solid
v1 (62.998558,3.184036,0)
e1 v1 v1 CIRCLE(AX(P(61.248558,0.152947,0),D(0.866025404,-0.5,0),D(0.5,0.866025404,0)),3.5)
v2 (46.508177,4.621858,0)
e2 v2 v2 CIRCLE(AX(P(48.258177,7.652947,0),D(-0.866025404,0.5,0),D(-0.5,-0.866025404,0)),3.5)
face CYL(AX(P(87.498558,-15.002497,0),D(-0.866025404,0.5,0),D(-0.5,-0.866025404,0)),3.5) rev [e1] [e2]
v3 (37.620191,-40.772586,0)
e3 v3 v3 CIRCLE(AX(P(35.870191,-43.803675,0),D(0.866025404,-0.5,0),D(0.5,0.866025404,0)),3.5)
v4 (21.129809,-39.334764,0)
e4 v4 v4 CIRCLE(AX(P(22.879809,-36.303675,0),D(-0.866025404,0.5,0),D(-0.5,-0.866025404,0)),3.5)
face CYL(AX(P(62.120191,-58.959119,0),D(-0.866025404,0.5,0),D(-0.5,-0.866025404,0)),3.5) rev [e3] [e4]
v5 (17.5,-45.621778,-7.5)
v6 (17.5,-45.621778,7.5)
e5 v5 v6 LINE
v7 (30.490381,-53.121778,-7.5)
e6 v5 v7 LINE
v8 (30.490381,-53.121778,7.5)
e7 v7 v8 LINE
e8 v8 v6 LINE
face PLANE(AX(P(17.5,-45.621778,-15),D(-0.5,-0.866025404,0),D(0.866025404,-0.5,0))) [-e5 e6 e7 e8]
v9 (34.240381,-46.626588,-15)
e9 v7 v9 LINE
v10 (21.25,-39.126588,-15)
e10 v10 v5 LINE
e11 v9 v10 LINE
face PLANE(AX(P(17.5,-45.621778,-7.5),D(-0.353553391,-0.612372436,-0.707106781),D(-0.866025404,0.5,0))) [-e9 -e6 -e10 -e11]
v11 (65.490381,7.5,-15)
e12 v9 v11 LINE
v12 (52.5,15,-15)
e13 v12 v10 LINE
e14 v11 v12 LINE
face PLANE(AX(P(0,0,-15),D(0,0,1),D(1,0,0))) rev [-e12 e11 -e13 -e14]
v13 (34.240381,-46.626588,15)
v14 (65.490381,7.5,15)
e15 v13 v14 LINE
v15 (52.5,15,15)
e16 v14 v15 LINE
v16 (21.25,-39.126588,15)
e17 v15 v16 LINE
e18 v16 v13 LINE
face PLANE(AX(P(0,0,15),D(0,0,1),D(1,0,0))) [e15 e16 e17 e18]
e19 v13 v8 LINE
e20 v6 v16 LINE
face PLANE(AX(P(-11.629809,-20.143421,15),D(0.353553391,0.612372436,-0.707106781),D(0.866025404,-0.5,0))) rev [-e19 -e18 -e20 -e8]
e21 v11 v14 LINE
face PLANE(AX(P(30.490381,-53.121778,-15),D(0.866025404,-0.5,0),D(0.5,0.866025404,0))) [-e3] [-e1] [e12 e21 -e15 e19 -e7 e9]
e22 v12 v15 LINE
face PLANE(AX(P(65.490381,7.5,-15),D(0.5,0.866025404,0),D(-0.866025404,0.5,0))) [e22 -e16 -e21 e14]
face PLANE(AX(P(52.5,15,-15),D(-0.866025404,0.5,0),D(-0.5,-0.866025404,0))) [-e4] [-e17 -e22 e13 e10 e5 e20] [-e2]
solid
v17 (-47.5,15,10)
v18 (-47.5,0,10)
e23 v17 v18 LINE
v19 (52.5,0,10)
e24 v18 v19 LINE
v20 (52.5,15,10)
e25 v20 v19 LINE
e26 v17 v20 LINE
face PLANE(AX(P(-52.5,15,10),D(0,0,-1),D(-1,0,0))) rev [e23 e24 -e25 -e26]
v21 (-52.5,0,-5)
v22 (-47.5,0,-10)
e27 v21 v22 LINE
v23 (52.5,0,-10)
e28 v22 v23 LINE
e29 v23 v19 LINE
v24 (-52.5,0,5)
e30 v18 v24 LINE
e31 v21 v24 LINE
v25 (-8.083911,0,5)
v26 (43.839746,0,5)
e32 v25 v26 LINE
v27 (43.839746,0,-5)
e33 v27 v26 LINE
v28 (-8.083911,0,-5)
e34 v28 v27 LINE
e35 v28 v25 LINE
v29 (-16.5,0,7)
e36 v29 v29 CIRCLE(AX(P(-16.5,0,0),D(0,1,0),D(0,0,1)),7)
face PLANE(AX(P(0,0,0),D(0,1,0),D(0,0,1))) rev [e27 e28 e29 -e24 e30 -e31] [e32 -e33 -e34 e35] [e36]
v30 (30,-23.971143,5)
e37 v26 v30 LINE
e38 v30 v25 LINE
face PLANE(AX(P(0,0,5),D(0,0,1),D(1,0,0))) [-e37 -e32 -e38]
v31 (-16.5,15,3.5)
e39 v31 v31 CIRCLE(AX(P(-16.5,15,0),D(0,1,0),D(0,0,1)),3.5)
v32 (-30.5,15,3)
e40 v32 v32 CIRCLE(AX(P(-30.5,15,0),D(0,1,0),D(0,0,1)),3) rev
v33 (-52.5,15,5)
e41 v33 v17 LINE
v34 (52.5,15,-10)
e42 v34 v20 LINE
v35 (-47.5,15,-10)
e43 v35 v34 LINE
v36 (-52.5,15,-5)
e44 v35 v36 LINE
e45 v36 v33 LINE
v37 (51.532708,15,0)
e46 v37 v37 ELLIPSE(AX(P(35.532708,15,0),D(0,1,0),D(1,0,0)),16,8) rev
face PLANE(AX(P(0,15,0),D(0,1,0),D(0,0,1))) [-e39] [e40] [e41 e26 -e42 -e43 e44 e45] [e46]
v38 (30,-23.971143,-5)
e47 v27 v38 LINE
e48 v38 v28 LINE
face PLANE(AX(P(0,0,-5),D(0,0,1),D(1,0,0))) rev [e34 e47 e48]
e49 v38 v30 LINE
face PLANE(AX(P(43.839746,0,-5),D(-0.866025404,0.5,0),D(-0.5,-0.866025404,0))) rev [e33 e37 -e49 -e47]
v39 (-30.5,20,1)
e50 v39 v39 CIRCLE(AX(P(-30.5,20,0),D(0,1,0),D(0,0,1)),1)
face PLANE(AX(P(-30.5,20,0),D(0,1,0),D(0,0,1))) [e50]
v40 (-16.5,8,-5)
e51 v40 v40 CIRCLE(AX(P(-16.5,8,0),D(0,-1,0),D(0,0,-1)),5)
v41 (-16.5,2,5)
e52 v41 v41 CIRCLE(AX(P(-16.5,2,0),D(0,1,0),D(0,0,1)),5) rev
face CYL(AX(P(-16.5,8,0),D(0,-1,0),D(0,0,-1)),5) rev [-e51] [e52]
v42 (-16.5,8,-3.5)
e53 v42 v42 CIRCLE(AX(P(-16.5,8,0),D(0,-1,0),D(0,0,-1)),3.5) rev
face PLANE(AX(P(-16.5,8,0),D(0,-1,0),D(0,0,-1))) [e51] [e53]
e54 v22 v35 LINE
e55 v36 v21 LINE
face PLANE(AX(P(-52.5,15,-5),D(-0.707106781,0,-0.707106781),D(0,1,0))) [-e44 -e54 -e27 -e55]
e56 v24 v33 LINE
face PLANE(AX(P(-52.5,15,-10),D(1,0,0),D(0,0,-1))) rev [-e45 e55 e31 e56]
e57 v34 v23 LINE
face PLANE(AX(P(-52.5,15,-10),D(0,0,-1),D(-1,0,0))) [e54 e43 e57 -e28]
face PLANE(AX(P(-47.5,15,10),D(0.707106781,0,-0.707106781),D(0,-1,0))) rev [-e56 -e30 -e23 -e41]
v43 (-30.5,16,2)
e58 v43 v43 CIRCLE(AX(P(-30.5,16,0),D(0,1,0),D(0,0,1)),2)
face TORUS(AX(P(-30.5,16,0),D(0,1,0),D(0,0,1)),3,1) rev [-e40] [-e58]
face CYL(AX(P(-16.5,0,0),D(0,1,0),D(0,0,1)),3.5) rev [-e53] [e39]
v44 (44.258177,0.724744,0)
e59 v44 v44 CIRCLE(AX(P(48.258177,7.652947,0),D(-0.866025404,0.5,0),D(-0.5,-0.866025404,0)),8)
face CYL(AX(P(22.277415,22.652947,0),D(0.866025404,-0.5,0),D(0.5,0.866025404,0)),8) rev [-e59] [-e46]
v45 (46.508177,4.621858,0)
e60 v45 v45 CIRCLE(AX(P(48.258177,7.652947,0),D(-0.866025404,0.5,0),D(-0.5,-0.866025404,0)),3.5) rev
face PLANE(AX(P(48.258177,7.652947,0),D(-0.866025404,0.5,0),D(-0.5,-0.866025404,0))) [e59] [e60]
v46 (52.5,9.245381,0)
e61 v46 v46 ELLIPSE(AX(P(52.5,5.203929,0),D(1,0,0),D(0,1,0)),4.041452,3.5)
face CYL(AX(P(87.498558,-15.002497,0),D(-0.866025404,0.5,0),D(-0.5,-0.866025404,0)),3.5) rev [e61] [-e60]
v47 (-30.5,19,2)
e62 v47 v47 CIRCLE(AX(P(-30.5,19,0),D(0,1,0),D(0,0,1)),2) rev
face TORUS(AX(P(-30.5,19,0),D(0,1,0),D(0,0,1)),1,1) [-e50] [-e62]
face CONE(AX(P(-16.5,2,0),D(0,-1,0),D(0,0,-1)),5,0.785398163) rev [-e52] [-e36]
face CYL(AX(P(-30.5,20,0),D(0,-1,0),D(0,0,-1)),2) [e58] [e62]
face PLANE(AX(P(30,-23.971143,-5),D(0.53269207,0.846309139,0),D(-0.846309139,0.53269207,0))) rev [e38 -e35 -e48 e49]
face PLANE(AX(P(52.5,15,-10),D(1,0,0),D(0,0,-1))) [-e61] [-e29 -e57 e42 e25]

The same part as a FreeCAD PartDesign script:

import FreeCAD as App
import Part
import Sketcher

V = App.Vector
Q = App.Units.Quantity


def edges_at(feature, points):
    """Names of the edges that pass closest to the given points."""
    edges = feature.Shape.Edges
    near = lambda p: min(range(len(edges)), key=lambda i: edges[i].distToShape(Part.Vertex(*p))[0])
    return sorted({f"Edge{near(p) + 1}" for p in points})


def add_polygon(sketch, points):
    """Adds a closed chain of lines whose ends are joined by coincident constraints."""
    first, n = sketch.GeometryCount, len(points)
    for a, b in zip(points, points[1:] + points[:1]):
        sketch.addGeometry(Part.LineSegment(App.Vector(*a, 0), App.Vector(*b, 0)), False)
    for i in range(n):
        sketch.addConstraint(Sketcher.Constraint("Coincident", first + i, 2, first + (i + 1) % n, 1))

doc = App.newDocument("Part")
body = doc.addObject("PartDesign::Body", "Body")

sketch1 = body.newObject("Sketcher::SketchObject", "Sketch")
sketch1.AttachmentSupport = (doc.getObject("XZ_Plane"), [""])
sketch1.MapMode = "FlatFace"
add_polygon(sketch1, [(-52.5, -10), (-52.5, 10), (52.5, 10), (52.5, -10)])
sketch1.addConstraint([
    Sketcher.Constraint("Vertical", 0),
    Sketcher.Constraint("Horizontal", 1),
    Sketcher.Constraint("Vertical", 2),
    Sketcher.Constraint("Horizontal", 3),
    Sketcher.Constraint("Symmetric", 0, 2, 2, 2, -1, 1),
    Sketcher.Constraint("DistanceX", 1, 1, 1, 2, Q("105 mm")),
    Sketcher.Constraint("DistanceY", 0, 1, 0, 2, Q("20 mm")),
])
pad1 = body.newObject("PartDesign::Pad", "Pad")
pad1.Profile = sketch1
pad1.Length = 15
pad1.Reversed = True

sketch2 = body.newObject("Sketcher::SketchObject", "Sketch001")
sketch2.AttachmentSupport = (doc.getObject("XZ_Plane"), [""])
sketch2.MapMode = "FlatFace"
sketch2.AttachmentOffset = App.Placement(V(0, 0, -15), App.Rotation())
sketch2.addGeometry(Part.Circle(V(-16.5, 0, 0), V(0, 0, 1), 3.5), False)
sketch2.addConstraint([
    Sketcher.Constraint("PointOnObject", 0, 3, -1),
    Sketcher.Constraint("Diameter", 0, Q("7 mm")),
    Sketcher.Constraint("DistanceX", 0, 3, -1, 1, Q("16.5 mm")),
])
pocket1 = body.newObject("PartDesign::Pocket", "Pocket")
pocket1.Profile = sketch2
pocket1.Length = 15
pocket1.Reversed = True

sketch3 = body.newObject("Sketcher::SketchObject", "Sketch002")
sketch3.AttachmentSupport = (doc.getObject("XZ_Plane"), [""])
sketch3.MapMode = "FlatFace"
sketch3.AttachmentOffset = App.Placement(V(0, 0, -15), App.Rotation())
sketch3.addGeometry(Part.Circle(V(-30.5, 0, 0), V(0, 0, 1), 2), False)
sketch3.addConstraint([
    Sketcher.Constraint("PointOnObject", 0, 3, -1),
    Sketcher.Constraint("Diameter", 0, Q("4 mm")),
    Sketcher.Constraint("DistanceX", 0, 3, -1, 1, Q("30.5 mm")),
])
pad2 = body.newObject("PartDesign::Pad", "Pad001")
pad2.Profile = sketch3
pad2.Length = 5
pad2.Reversed = True

sketch4 = body.newObject("Sketcher::SketchObject", "Sketch003")
sketch4.AttachmentSupport = (doc.getObject("XZ_Plane"), [""])
sketch4.MapMode = "FlatFace"
sketch4.addGeometry(Part.Circle(V(-16.5, 0, 0), V(0, 0, 1), 5), False)
sketch4.addConstraint([
    Sketcher.Constraint("PointOnObject", 0, 3, -1),
    Sketcher.Constraint("Diameter", 0, Q("10 mm")),
    Sketcher.Constraint("DistanceX", 0, 3, -1, 1, Q("16.5 mm")),
])
pocket2 = body.newObject("PartDesign::Pocket", "Pocket001")
pocket2.Profile = sketch4
pocket2.Length = 8

sketch5 = body.newObject("Sketcher::SketchObject", "Sketch004")
sketch5.AttachmentSupport = (doc.getObject("XY_Plane"), [""])
sketch5.MapMode = "FlatFace"
add_polygon(sketch5, [(43.839746, 0), (-8.083911, 0), (30, -23.971143)])
sketch5.addConstraint([
    Sketcher.Constraint("Horizontal", 0),
    Sketcher.Constraint("PointOnObject", 0, 2, -1),
    Sketcher.Constraint("Angle", 2, Q("60 deg")),
    Sketcher.Constraint("Distance", 1, Q("45 mm")),
    Sketcher.Constraint("DistanceX", -1, 1, 1, 2, Q("30 mm")),
    Sketcher.Constraint("Distance", 2, Q("27.679492 mm")),
])
pad3 = body.newObject("PartDesign::Pad", "Pad002")
pad3.Profile = sketch5
pad3.Type = "TwoLengths"
pad3.Length = 5
pad3.Length2 = 5
doc.recompute()

fillet = body.newObject("PartDesign::Fillet", "Fillet")
fillet.Base = (pad3, edges_at(pad3, [(-30.5, 20, -2)]))
fillet.Radius = 1
doc.recompute()

fillet2 = body.newObject("PartDesign::Fillet", "Fillet001")
fillet2.Base = (fillet, edges_at(fillet, [(-30.5, 15, -2)]))
fillet2.Radius = 1
doc.recompute()

chamfer = body.newObject("PartDesign::Chamfer", "Chamfer")
chamfer.Base = (fillet2, edges_at(fillet2, [(-16.5, 0, 5)]))
chamfer.Size = 2
doc.recompute()

chamfer2 = body.newObject("PartDesign::Chamfer", "Chamfer001")
chamfer2.Base = (chamfer, edges_at(chamfer, [(-52.5, 7.5, -10), (-52.5, 7.5, 10)]))
chamfer2.Size = 5
body2 = doc.addObject("PartDesign::Body", "Body001")

sketch6 = body2.newObject("Sketcher::SketchObject", "Sketch005")
sketch6.AttachmentSupport = (doc.getObject("XY_Plane001"), [""])
sketch6.MapMode = "FlatFace"
add_polygon(sketch6, [(52.5, 15), (17.5, -45.621778), (30.490381, -53.121778), (65.490381, 7.5)])
sketch6.addConstraint([
    Sketcher.Constraint("Perpendicular", 0, 1),
    Sketcher.Constraint("Perpendicular", 1, 2),
    Sketcher.Constraint("Perpendicular", 2, 3),
    Sketcher.Constraint("Angle", 0, Q("-120 deg")),
    Sketcher.Constraint("Distance", 0, Q("70 mm")),
    Sketcher.Constraint("Distance", 1, Q("15 mm")),
    Sketcher.Constraint("DistanceY", -1, 1, 3, 2, Q("15 mm")),
    Sketcher.Constraint("DistanceX", -1, 1, 0, 2, Q("17.5 mm")),
])
pad4 = body2.newObject("PartDesign::Pad", "Pad003")
pad4.Profile = sketch6
pad4.Type = "TwoLengths"
pad4.Length = 15
pad4.Length2 = 15

sketch7 = body2.newObject("Sketcher::SketchObject", "Sketch006")
sketch7.Placement = App.Placement(V(32.879809, -18.983167, 0), App.Rotation(V(0, 0, 1), V(0.5, 0.866025404, 0), V(-0.866025404, 0.5, 0), "ZXY"))
sketch7.addGeometry(Part.Circle(V(0, -20, 0), V(0, 0, 1), 3.5), False)
sketch7.addConstraint([
    Sketcher.Constraint("PointOnObject", 0, 3, -2),
    Sketcher.Constraint("Diameter", 0, Q("7 mm")),
    Sketcher.Constraint("DistanceY", 0, 3, -1, 1, Q("20 mm")),
])
pocket3 = body2.newObject("PartDesign::Pocket", "Pocket002")
pocket3.Profile = sketch7
pocket3.Type = "ThroughAll"
doc.recompute()

chamfer3 = body2.newObject("PartDesign::Chamfer", "Chamfer002")
chamfer3.Base = (pocket3, edges_at(pocket3, [(23.995, -49.372, -15), (23.995, -49.372, 15)]))
chamfer3.Size = 7.5
body3 = doc.addObject("PartDesign::Body", "Body002")

sketch8 = body3.newObject("Sketcher::SketchObject", "Sketch007")
sketch8.Placement = App.Placement(V(32.879809, -18.983167, 0), App.Rotation(V(0, 0, 1), V(0.5, 0.866025404, 0), V(-0.866025404, 0.5, 0), "ZXY"))
sketch8.addGeometry(Part.Circle(V(0, 30.756735, 0), V(0, 0, 1), 3.5), False)
sketch8.addConstraint([
    Sketcher.Constraint("PointOnObject", 0, 3, -2),
    Sketcher.Constraint("Diameter", 0, Q("7 mm")),
    Sketcher.Constraint("DistanceY", -1, 1, 0, 3, Q("30.756735 mm")),
])
pad5 = body3.newObject("PartDesign::Pad", "Pad004")
pad5.Profile = sketch8
pad5.Type = "TwoLengths"
pad5.Length = 96.049456
pad5.Length2 = 96.049456
doc.recompute()

body4 = doc.addObject("PartDesign::Body", "Body003")
body4.BaseFeature = body3
boolean = body.newObject("PartDesign::Boolean", "Boolean")
boolean.Type = "Cut"
boolean.addObjects([body4])
doc.recompute()

sketch9 = body.newObject("Sketcher::SketchObject", "Sketch008")
sketch9.Placement = App.Placement(V(32.879809, -18.983167, 0), App.Rotation(V(0, 0, 1), V(0.5, 0.866025404, 0), V(-0.866025404, 0.5, 0), "ZXY"))
sketch9.addGeometry(Part.Circle(V(0, 30.756735, 0), V(0, 0, 1), 8), False)
sketch9.addConstraint([
    Sketcher.Constraint("PointOnObject", 0, 3, -2),
    Sketcher.Constraint("Diameter", 0, Q("16 mm")),
    Sketcher.Constraint("DistanceY", -1, 1, 0, 3, Q("30.756735 mm")),
])
pocket4 = body.newObject("PartDesign::Pocket", "Pocket003")
pocket4.Profile = sketch9
pocket4.Length = 30
pocket4.Reversed = True
doc.recompute()

boolean2 = body2.newObject("PartDesign::Boolean", "Boolean001")
boolean2.Type = "Cut"
boolean2.addObjects([body3])

doc.recompute()
